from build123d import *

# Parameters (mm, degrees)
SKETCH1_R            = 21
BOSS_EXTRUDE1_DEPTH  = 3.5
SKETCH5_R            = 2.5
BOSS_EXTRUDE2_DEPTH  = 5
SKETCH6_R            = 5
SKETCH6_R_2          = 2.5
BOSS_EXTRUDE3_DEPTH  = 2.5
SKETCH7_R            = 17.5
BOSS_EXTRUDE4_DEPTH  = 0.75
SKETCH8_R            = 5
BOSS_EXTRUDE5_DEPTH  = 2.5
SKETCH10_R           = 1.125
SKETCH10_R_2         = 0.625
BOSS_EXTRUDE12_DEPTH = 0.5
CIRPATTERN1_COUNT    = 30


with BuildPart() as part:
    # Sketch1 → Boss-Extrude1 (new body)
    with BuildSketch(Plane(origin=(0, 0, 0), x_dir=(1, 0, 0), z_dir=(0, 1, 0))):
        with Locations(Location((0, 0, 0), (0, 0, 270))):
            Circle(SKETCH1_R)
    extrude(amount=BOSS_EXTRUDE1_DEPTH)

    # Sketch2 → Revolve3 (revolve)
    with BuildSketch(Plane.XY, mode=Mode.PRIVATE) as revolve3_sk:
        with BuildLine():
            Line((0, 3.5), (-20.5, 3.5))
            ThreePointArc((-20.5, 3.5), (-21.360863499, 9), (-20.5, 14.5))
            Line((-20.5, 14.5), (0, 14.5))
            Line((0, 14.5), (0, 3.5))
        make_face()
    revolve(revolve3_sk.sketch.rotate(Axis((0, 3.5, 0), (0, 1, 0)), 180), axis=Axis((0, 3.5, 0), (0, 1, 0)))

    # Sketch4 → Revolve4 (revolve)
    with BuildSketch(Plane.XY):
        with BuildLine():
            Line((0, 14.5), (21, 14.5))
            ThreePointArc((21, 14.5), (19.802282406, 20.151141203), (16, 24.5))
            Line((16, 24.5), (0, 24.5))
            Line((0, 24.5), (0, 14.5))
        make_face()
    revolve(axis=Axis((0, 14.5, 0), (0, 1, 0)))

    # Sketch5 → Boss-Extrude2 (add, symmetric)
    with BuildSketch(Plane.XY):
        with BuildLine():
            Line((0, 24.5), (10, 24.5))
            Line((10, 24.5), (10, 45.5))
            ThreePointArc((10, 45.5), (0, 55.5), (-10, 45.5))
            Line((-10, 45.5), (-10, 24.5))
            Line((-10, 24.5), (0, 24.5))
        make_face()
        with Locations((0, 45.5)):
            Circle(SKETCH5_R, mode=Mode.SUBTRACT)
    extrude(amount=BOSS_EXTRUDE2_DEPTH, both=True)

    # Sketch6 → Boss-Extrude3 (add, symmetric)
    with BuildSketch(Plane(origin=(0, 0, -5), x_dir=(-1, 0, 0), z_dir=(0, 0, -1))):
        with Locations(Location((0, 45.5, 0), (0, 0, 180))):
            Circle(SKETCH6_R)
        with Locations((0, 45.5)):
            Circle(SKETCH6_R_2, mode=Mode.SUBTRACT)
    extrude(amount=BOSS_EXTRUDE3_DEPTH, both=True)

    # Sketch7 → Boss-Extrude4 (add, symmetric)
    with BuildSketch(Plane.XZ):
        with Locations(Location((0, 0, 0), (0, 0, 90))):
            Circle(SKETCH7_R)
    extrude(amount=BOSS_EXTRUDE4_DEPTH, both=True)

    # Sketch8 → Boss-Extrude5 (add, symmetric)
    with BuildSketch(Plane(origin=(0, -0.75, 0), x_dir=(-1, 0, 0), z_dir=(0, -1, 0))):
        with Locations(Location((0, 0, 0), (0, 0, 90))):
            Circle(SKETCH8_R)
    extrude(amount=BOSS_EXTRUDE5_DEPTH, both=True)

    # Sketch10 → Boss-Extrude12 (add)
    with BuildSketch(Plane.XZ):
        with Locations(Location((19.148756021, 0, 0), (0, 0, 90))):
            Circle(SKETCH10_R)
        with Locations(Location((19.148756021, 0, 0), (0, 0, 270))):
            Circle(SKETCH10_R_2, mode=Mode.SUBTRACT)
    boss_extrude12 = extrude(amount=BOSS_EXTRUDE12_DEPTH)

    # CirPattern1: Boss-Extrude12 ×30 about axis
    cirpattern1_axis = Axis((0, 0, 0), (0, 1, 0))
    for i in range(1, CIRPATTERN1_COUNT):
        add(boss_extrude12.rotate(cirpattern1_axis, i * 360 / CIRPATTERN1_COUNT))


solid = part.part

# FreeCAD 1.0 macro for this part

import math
import FreeCAD as App
import Part
import Sketcher
from FreeCAD import Vector
Q = App.Units.Quantity

doc = App.newDocument("Part")
body = doc.addObject("PartDesign::Body", "Body")

# Sketch on XZ plane
sketch1 = doc.addObject("Sketcher::SketchObject", "Sketch")
body.addObject(sketch1)
sketch1.AttachmentSupport = (doc.XZ_Plane, [""])
sketch1.MapMode = "FlatFace"
sketch1.addGeometry(Part.Circle(Vector(0, 0, 0), Vector(0, 0, 1), 21), False)
sketch1.addConstraint([
    Sketcher.Constraint("Coincident", 0, 3, -1, 1),
    Sketcher.Constraint("Diameter", 0, Q("42 mm")),
])
pad1 = doc.addObject("PartDesign::Pad", "Pad")
body.addObject(pad1)
pad1.Profile = sketch1
pad1.Length = 3.5
pad1.Reversed = True

# Sketch on XY plane
sketch2 = doc.addObject("Sketcher::SketchObject", "Sketch001")
body.addObject(sketch2)
sketch2.AttachmentSupport = (doc.XY_Plane, [""])
sketch2.MapMode = "FlatFace"
sketch2.addGeometry([
    Part.LineSegment(Vector(-20, 4, 0), Vector(0, 4, 0)),
    Part.LineSegment(Vector(0, 4, 0), Vector(0, 14, 0)),
    Part.LineSegment(Vector(0, 14, 0), Vector(-20, 14, 0)),
    Part.ArcOfCircle(Part.Circle(Vector(-3, 9, 0), Vector(0, 0, 1), 18), math.radians(162), math.radians(198)),
], False)
sketch2.addConstraint([
    Sketcher.Constraint("Coincident", 0, 2, 1, 1),
    Sketcher.Constraint("Coincident", 1, 2, 2, 1),
    Sketcher.Constraint("Coincident", 2, 2, 3, 1),
    Sketcher.Constraint("Coincident", 3, 2, 0, 1),
    Sketcher.Constraint("Horizontal", 0),
    Sketcher.Constraint("Vertical", 1),
    Sketcher.Constraint("Horizontal", 2),
    Sketcher.Constraint("PointOnObject", 0, 2, -2),
    Sketcher.Constraint("Vertical", 2, 2, 3, 2),
    Sketcher.Constraint("Radius", 3, Q("18 mm")),
    Sketcher.Constraint("DistanceY", 1, 1, 1, 2, Q("11 mm")),
    Sketcher.Constraint("DistanceX", 0, 1, 0, 2, Q("20.5 mm")),
    Sketcher.Constraint("DistanceY", -1, 1, 3, 3, Q("9 mm")),
])
revolution = doc.addObject("PartDesign::Revolution", "Revolution")
body.addObject(revolution)
revolution.Profile = sketch2
revolution.ReferenceAxis = (sketch2, ["V_Axis"])
revolution.Angle = 360

# Sketch on XY plane
sketch3 = doc.addObject("Sketcher::SketchObject", "Sketch002")
body.addObject(sketch3)
sketch3.AttachmentSupport = (doc.XY_Plane, [""])
sketch3.MapMode = "FlatFace"
sketch3.addGeometry([
    Part.LineSegment(Vector(0, 14, 0), Vector(21, 14, 0)),
    Part.ArcOfCircle(Part.Circle(Vector(10, 15, 0), Vector(0, 0, 1), 11), math.radians(-3), math.radians(56)),
    Part.LineSegment(Vector(16, 24, 0), Vector(0, 24, 0)),
    Part.LineSegment(Vector(0, 24, 0), Vector(0, 14, 0)),
], False)
sketch3.addConstraint([
    Sketcher.Constraint("Coincident", 0, 2, 1, 1),
    Sketcher.Constraint("Coincident", 1, 2, 2, 1),
    Sketcher.Constraint("Coincident", 2, 2, 3, 1),
    Sketcher.Constraint("Coincident", 3, 2, 0, 1),
    Sketcher.Constraint("Horizontal", 0),
    Sketcher.Constraint("Horizontal", 2),
    Sketcher.Constraint("Vertical", 3),
    Sketcher.Constraint("PointOnObject", 2, 2, -2),
    Sketcher.Constraint("DistanceX", 0, 1, 0, 2, Q("21 mm")),
    Sketcher.Constraint("DistanceX", 2, 2, 2, 1, Q("16 mm")),
    Sketcher.Constraint("DistanceY", 3, 2, 3, 1, Q("10 mm")),
    Sketcher.Constraint("DistanceY", -1, 1, 0, 2, Q("14.5 mm")),
    Sketcher.Constraint("Radius", 1, Q("11.459484 mm")),
])
revolution2 = doc.addObject("PartDesign::Revolution", "Revolution001")
body.addObject(revolution2)
revolution2.Profile = sketch3
revolution2.ReferenceAxis = (sketch3, ["V_Axis"])
revolution2.Angle = 360

# Sketch on XY plane
sketch4 = doc.addObject("Sketcher::SketchObject", "Sketch003")
body.addObject(sketch4)
sketch4.AttachmentSupport = (doc.XY_Plane, [""])
sketch4.MapMode = "FlatFace"
sketch4.addGeometry([
    Part.LineSegment(Vector(10, 24.5, 0), Vector(10, 45.5, 0)),  # 0
    Part.ArcOfCircle(Part.Circle(Vector(0, 45.5, 0), Vector(0, 0, 1), 10), math.radians(0), math.radians(180)),  # 1
    Part.LineSegment(Vector(-10, 45.5, 0), Vector(-10, 24.5, 0)),  # 2
    Part.LineSegment(Vector(-10, 24.5, 0), Vector(10, 24.5, 0)),  # 3
    Part.Circle(Vector(0, 45.5, 0), Vector(0, 0, 1), 2.5),  # 4
], False)
sketch4.addConstraint([
    Sketcher.Constraint("Tangent", 0, 2, 1, 1),
    Sketcher.Constraint("Tangent", 1, 2, 2, 1),
    Sketcher.Constraint("Coincident", 2, 2, 3, 1),
    Sketcher.Constraint("Coincident", 3, 2, 0, 1),
    Sketcher.Constraint("Vertical", 0),
    Sketcher.Constraint("Vertical", 2),
    Sketcher.Constraint("Horizontal", 3),
    Sketcher.Constraint("Coincident", 4, 3, 1, 3),
    Sketcher.Constraint("PointOnObject", 1, 3, -2),
    Sketcher.Constraint("Diameter", 4, Q("5 mm")),
    Sketcher.Constraint("Radius", 1, Q("10 mm")),
    Sketcher.Constraint("DistanceY", 0, 1, 0, 2, Q("21 mm")),
    Sketcher.Constraint("DistanceY", -1, 1, 1, 3, Q("45.5 mm")),
])
pad2 = doc.addObject("PartDesign::Pad", "Pad001")
body.addObject(pad2)
pad2.Profile = sketch4
pad2.Length = 10
pad2.Midplane = True

# Sketch on XY plane
sketch5 = doc.addObject("Sketcher::SketchObject", "Sketch004")
body.addObject(sketch5)
sketch5.AttachmentSupport = (doc.XY_Plane, [""])
sketch5.MapMode = "FlatFace"
sketch5.AttachmentOffset = App.Placement(Vector(0, 0, -5), App.Rotation())
sketch5.addGeometry([
    Part.Circle(Vector(0, 45.5, 0), Vector(0, 0, 1), 5),
    Part.Circle(Vector(0, 45.5, 0), Vector(0, 0, 1), 2.5),
], False)
sketch5.addConstraint([
    Sketcher.Constraint("Coincident", 1, 3, 0, 3),
    Sketcher.Constraint("PointOnObject", 0, 3, -2),
    Sketcher.Constraint("Diameter", 0, Q("10 mm")),
    Sketcher.Constraint("Diameter", 1, Q("5 mm")),
    Sketcher.Constraint("DistanceY", -1, 1, 0, 3, Q("45.5 mm")),
])
pad3 = doc.addObject("PartDesign::Pad", "Pad002")
body.addObject(pad3)
pad3.Profile = sketch5
pad3.Length = 5
pad3.Midplane = True

# Sketch on XZ plane
sketch6 = doc.addObject("Sketcher::SketchObject", "Sketch005")
body.addObject(sketch6)
sketch6.AttachmentSupport = (doc.XZ_Plane, [""])
sketch6.MapMode = "FlatFace"
sketch6.addGeometry(Part.Circle(Vector(0, 0, 0), Vector(0, 0, 1), 18), False)
sketch6.addConstraint([
    Sketcher.Constraint("Coincident", 0, 3, -1, 1),
    Sketcher.Constraint("Diameter", 0, Q("35 mm")),
])
pad4 = doc.addObject("PartDesign::Pad", "Pad003")
body.addObject(pad4)
pad4.Profile = sketch6
pad4.Length = 1.5
pad4.Midplane = True

# Sketch on XZ plane
sketch7 = doc.addObject("Sketcher::SketchObject", "Sketch006")
body.addObject(sketch7)
sketch7.AttachmentSupport = (doc.XZ_Plane, [""])
sketch7.MapMode = "FlatFace"
sketch7.AttachmentOffset = App.Placement(Vector(0, 0, 0.75), App.Rotation())
sketch7.addGeometry(Part.Circle(Vector(0, 0, 0), Vector(0, 0, 1), 5), False)
sketch7.addConstraint([
    Sketcher.Constraint("Coincident", 0, 3, -1, 1),
    Sketcher.Constraint("Diameter", 0, Q("10 mm")),
])
pad5 = doc.addObject("PartDesign::Pad", "Pad004")
body.addObject(pad5)
pad5.Profile = sketch7
pad5.Length = 5
pad5.Midplane = True

# Sketch on XZ plane
sketch8 = doc.addObject("Sketcher::SketchObject", "Sketch007")
body.addObject(sketch8)
sketch8.AttachmentSupport = (doc.XZ_Plane, [""])
sketch8.MapMode = "FlatFace"
sketch8.addGeometry([
    Part.Circle(Vector(19.1, 0, 0), Vector(0, 0, 1), 1.1),
    Part.Circle(Vector(19.1, 0, 0), Vector(0, 0, 1), 0.6),
], False)
sketch8.addConstraint([
    Sketcher.Constraint("Coincident", 1, 3, 0, 3),
    Sketcher.Constraint("PointOnObject", 0, 3, -1),
    Sketcher.Constraint("Diameter", 0, Q("2.25 mm")),
    Sketcher.Constraint("Diameter", 1, Q("1.25 mm")),
    Sketcher.Constraint("DistanceX", -1, 1, 0, 3, Q("19.148756 mm")),
])
pad6 = doc.addObject("PartDesign::Pad", "Pad005")
body.addObject(pad6)
pad6.Profile = sketch8
pad6.Length = 0.5
doc.recompute()

polarpattern = doc.addObject("PartDesign::PolarPattern", "PolarPattern")
body.addObject(polarpattern)
polarpattern.Originals = [pad6]
polarpattern.Axis = (doc.Y_Axis, [""])
polarpattern.Angle = 360
polarpattern.Occurrences = 30
body.Tip = polarpattern

doc.recompute()
